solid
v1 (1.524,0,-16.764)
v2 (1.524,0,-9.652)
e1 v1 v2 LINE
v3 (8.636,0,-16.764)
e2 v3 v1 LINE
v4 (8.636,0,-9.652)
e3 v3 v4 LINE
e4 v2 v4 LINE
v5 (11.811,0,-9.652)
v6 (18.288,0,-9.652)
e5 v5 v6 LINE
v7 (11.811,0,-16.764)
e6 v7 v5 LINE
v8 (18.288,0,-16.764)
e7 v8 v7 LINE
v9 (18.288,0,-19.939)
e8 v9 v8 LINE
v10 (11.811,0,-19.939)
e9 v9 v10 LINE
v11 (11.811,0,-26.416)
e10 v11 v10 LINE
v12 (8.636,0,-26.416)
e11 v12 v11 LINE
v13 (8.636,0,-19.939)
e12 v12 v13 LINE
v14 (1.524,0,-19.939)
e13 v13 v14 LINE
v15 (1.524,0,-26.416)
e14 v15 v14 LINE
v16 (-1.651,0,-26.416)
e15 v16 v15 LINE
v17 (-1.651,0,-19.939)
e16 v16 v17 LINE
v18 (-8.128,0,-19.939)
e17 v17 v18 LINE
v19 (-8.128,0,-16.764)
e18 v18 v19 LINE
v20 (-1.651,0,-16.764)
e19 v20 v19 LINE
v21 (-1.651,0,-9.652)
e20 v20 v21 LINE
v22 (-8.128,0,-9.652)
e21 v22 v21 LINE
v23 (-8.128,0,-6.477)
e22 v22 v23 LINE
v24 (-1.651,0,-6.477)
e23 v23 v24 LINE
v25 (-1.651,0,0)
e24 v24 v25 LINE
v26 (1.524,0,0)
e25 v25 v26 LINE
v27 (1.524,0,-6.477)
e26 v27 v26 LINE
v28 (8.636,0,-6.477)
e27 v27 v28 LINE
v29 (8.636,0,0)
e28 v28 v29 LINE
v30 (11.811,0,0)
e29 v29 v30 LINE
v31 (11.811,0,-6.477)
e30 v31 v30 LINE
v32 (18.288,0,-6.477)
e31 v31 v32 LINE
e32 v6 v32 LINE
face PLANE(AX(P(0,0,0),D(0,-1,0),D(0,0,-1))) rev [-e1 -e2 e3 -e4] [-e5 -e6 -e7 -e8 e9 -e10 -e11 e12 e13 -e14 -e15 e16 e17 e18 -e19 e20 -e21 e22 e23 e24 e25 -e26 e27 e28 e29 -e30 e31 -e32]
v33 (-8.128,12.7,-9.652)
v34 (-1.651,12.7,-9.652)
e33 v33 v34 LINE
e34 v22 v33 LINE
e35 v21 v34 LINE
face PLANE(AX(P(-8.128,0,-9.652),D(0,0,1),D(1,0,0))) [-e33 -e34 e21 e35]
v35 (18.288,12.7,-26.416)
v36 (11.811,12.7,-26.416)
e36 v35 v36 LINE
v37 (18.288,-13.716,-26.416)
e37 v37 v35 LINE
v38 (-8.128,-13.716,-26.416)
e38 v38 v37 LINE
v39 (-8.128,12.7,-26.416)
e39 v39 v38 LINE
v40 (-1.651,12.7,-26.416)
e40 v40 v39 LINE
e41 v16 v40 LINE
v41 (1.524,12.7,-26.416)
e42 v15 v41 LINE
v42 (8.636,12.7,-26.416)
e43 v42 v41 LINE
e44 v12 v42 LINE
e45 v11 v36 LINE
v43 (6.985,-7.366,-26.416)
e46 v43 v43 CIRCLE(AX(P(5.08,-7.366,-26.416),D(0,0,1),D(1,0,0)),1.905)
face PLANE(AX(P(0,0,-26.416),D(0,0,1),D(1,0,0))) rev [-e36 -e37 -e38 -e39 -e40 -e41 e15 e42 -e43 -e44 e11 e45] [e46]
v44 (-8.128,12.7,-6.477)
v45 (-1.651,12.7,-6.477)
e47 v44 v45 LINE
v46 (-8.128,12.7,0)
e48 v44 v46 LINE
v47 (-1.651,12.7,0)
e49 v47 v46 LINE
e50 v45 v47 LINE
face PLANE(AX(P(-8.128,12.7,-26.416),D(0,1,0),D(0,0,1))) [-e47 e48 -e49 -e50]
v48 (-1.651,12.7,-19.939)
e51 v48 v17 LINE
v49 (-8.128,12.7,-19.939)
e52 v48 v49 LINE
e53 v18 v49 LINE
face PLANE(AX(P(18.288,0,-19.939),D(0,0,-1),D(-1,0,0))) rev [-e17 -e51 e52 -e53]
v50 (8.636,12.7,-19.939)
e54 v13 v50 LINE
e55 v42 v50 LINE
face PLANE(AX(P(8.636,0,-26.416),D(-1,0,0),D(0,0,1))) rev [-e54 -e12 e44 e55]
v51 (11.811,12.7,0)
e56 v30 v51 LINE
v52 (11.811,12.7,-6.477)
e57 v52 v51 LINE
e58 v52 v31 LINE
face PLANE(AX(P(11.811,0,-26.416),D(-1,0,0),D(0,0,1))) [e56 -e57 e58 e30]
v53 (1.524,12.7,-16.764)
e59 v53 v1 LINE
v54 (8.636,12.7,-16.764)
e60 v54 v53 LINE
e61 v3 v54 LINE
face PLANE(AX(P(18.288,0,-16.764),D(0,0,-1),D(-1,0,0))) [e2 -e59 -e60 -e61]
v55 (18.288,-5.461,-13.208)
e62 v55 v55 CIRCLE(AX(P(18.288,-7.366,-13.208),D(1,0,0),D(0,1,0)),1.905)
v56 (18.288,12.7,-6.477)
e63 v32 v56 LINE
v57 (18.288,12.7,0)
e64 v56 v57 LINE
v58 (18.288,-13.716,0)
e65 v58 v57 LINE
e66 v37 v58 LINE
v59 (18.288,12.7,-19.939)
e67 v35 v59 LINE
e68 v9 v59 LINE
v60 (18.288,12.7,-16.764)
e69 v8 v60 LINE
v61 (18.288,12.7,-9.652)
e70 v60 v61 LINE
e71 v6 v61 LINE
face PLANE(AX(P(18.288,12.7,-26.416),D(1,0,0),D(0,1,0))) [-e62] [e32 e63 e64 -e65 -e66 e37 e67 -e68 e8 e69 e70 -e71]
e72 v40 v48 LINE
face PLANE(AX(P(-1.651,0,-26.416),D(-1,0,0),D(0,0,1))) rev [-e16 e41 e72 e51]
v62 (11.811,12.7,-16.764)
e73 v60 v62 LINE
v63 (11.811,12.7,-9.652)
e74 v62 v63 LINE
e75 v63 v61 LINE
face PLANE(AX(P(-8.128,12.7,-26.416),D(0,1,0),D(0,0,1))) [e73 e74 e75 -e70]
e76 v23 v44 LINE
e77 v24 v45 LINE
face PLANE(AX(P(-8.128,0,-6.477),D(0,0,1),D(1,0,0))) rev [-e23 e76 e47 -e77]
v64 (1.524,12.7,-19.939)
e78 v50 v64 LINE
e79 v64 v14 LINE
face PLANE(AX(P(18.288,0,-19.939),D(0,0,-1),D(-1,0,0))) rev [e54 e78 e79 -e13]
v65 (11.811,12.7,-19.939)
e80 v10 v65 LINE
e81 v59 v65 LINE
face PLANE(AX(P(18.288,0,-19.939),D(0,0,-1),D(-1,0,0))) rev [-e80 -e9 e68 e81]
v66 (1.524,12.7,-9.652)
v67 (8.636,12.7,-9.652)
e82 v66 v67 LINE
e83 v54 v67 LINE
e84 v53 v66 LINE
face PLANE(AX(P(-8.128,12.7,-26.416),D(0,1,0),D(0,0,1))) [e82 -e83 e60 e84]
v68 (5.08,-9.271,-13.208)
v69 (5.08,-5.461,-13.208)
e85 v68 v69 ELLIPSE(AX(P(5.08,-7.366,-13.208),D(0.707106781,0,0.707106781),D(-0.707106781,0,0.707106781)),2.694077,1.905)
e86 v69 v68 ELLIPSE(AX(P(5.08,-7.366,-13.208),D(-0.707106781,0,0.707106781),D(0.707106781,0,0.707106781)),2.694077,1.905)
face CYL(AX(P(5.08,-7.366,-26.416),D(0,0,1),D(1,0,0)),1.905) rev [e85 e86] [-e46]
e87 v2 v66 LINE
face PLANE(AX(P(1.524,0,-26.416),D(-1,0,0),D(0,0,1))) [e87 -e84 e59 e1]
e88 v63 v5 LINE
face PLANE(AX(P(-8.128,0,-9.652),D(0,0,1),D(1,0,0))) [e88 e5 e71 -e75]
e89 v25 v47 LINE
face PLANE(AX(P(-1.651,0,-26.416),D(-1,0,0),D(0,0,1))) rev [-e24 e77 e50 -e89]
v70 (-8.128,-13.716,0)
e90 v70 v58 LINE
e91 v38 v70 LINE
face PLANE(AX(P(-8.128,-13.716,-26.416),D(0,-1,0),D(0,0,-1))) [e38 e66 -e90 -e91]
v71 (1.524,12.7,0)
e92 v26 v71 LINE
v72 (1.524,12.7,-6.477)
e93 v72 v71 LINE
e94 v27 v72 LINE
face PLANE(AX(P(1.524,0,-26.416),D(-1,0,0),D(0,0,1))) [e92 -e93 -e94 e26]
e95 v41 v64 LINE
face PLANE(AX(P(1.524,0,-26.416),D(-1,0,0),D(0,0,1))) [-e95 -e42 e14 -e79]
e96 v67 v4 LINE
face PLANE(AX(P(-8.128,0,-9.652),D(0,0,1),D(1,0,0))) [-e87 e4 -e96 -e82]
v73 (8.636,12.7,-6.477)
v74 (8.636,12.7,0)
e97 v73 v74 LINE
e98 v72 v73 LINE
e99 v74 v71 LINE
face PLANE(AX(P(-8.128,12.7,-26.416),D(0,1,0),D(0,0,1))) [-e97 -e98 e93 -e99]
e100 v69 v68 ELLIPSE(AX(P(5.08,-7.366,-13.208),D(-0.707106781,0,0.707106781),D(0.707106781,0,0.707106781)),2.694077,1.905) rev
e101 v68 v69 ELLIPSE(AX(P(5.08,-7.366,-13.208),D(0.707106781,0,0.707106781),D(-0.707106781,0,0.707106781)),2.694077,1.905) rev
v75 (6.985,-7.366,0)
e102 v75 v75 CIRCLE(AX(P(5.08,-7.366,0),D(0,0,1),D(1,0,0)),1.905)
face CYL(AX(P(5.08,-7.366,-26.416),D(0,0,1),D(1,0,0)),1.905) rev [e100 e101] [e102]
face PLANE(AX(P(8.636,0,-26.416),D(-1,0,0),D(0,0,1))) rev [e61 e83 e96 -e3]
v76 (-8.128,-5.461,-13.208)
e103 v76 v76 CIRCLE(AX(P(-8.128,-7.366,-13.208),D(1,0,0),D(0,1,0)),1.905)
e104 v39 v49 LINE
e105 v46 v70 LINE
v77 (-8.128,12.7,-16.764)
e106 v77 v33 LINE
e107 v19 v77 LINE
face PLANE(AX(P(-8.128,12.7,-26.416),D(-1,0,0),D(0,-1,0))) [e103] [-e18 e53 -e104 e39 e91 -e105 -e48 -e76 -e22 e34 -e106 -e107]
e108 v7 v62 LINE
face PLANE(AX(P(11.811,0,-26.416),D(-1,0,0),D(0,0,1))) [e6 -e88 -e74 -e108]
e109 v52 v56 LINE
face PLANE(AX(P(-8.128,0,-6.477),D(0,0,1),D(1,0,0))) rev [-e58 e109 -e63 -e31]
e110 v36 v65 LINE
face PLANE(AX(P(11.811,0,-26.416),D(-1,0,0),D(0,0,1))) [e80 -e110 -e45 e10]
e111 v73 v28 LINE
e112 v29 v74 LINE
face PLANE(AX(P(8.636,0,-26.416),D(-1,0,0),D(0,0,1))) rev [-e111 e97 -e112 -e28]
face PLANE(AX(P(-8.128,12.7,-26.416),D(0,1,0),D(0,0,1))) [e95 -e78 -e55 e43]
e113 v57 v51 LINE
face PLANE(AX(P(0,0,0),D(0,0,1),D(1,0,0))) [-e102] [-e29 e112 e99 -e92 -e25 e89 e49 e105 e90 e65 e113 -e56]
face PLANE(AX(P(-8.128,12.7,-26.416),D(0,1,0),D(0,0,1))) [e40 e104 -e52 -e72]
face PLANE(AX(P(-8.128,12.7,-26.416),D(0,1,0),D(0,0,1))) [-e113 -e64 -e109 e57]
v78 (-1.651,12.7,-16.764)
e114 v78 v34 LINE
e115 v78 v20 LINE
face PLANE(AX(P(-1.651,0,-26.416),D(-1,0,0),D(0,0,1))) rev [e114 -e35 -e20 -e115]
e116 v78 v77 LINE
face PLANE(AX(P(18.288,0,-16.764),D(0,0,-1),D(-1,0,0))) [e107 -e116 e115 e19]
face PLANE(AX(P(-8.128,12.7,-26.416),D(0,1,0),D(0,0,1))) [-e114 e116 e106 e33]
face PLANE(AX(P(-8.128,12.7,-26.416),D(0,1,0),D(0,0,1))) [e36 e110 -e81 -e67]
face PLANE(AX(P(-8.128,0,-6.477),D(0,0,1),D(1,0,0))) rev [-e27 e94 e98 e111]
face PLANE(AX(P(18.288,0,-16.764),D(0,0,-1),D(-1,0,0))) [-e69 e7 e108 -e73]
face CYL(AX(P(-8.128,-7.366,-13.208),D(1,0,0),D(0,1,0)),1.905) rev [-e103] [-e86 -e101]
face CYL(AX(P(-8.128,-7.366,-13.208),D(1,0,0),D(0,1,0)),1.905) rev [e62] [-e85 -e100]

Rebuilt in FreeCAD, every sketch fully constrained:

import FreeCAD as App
import Part
import Sketcher
Q = App.Units.Quantity

doc = App.newDocument("Part")
body = doc.addObject("PartDesign::Body", "Body")

# Sketch on XY plane
sketch1 = body.newObject("Sketcher::SketchObject", "Sketch")
sketch1.AttachmentSupport = (doc.getObject("XY_Plane"), [""])
sketch1.MapMode = "FlatFace"
sketch1.addGeometry(Part.LineSegment(App.Vector(-8, 13, 0), App.Vector(-8, -14, 0)), False)
sketch1.addGeometry(Part.LineSegment(App.Vector(-8, -14, 0), App.Vector(18, -14, 0)), False)
sketch1.addGeometry(Part.LineSegment(App.Vector(18, -14, 0), App.Vector(18, 13, 0)), False)
sketch1.addGeometry(Part.LineSegment(App.Vector(18, 13, 0), App.Vector(-8, 13, 0)), False)
sketch1.addConstraint(Sketcher.Constraint("Coincident", 0, 2, 1, 1))
sketch1.addConstraint(Sketcher.Constraint("Coincident", 1, 2, 2, 1))
sketch1.addConstraint(Sketcher.Constraint("Coincident", 2, 2, 3, 1))
sketch1.addConstraint(Sketcher.Constraint("Coincident", 3, 2, 0, 1))
sketch1.addConstraint(Sketcher.Constraint("Vertical", 0))
sketch1.addConstraint(Sketcher.Constraint("Horizontal", 1))
sketch1.addConstraint(Sketcher.Constraint("Vertical", 2))
sketch1.addConstraint(Sketcher.Constraint("Horizontal", 3))
sketch1.addConstraint(Sketcher.Constraint("Equal", 3, 0))
sketch1.addConstraint(Sketcher.Constraint("DistanceX", 1, 1, 1, 2, Q("1.04 in")))
sketch1.addConstraint(Sketcher.Constraint("DistanceY", -1, 1, 2, 2, Q("0.5 in")))
sketch1.addConstraint(Sketcher.Constraint("DistanceX", 0, 2, -1, 1, Q("0.32 in")))
pad1 = body.newObject("PartDesign::Pad", "Pad")
pad1.Profile = sketch1
pad1.Length = Q("1.04 in")
pad1.Reversed = True

# Sketch on XZ plane
sketch2 = body.newObject("Sketcher::SketchObject", "Sketch001")
sketch2.AttachmentSupport = (doc.getObject("XZ_Plane"), [""])
sketch2.MapMode = "FlatFace"
sketch2.AttachmentOffset = App.Placement(App.Vector(0, 0, -0.5 * 25.4), App.Rotation())
sketch2.addGeometry(Part.LineSegment(App.Vector(-1.7, -6.5, 0), App.Vector(-1.7, 0, 0)), False)
sketch2.addGeometry(Part.LineSegment(App.Vector(-1.7, 0, 0), App.Vector(1.5, 0, 0)), False)
sketch2.addGeometry(Part.LineSegment(App.Vector(1.5, 0, 0), App.Vector(1.5, -6.5, 0)), False)
sketch2.addGeometry(Part.LineSegment(App.Vector(1.5, -6.5, 0), App.Vector(8.6, -6.5, 0)), False)
sketch2.addGeometry(Part.LineSegment(App.Vector(8.6, -6.5, 0), App.Vector(8.6, 0, 0)), False)
sketch2.addGeometry(Part.LineSegment(App.Vector(8.6, 0, 0), App.Vector(11.8, 0, 0)), False)
sketch2.addGeometry(Part.LineSegment(App.Vector(11.8, 0, 0), App.Vector(11.8, -6.5, 0)), False)
sketch2.addGeometry(Part.LineSegment(App.Vector(11.8, -6.5, 0), App.Vector(18.3, -6.5, 0)), False)
sketch2.addGeometry(Part.LineSegment(App.Vector(18.3, -6.5, 0), App.Vector(18.3, -9.7, 0)), False)
sketch2.addGeometry(Part.LineSegment(App.Vector(18.3, -9.7, 0), App.Vector(11.8, -9.7, 0)), False)
sketch2.addGeometry(Part.LineSegment(App.Vector(11.8, -9.7, 0), App.Vector(11.8, -16.8, 0)), False)
sketch2.addGeometry(Part.LineSegment(App.Vector(11.8, -16.8, 0), App.Vector(18.3, -16.8, 0)), False)
sketch2.addGeometry(Part.LineSegment(App.Vector(18.3, -16.8, 0), App.Vector(18.3, -19.9, 0)), False)
sketch2.addGeometry(Part.LineSegment(App.Vector(18.3, -19.9, 0), App.Vector(11.8, -19.9, 0)), False)
sketch2.addGeometry(Part.LineSegment(App.Vector(11.8, -19.9, 0), App.Vector(11.8, -26.4, 0)), False)
sketch2.addGeometry(Part.LineSegment(App.Vector(11.8, -26.4, 0), App.Vector(8.6, -26.4, 0)), False)
sketch2.addGeometry(Part.LineSegment(App.Vector(8.6, -26.4, 0), App.Vector(8.6, -19.9, 0)), False)
sketch2.addGeometry(Part.LineSegment(App.Vector(8.6, -19.9, 0), App.Vector(1.5, -19.9, 0)), False)
sketch2.addGeometry(Part.LineSegment(App.Vector(1.5, -19.9, 0), App.Vector(1.5, -26.4, 0)), False)
sketch2.addGeometry(Part.LineSegment(App.Vector(1.5, -26.4, 0), App.Vector(-1.7, -26.4, 0)), False)
sketch2.addGeometry(Part.LineSegment(App.Vector(-1.7, -26.4, 0), App.Vector(-1.7, -19.9, 0)), False)
sketch2.addGeometry(Part.LineSegment(App.Vector(-1.7, -19.9, 0), App.Vector(-8.1, -19.9, 0)), False)
sketch2.addGeometry(Part.LineSegment(App.Vector(-8.1, -19.9, 0), App.Vector(-8.1, -16.8, 0)), False)
sketch2.addGeometry(Part.LineSegment(App.Vector(-8.1, -16.8, 0), App.Vector(-1.7, -16.8, 0)), False)
sketch2.addGeometry(Part.LineSegment(App.Vector(-1.7, -16.8, 0), App.Vector(-1.7, -9.7, 0)), False)
sketch2.addGeometry(Part.LineSegment(App.Vector(-1.7, -9.7, 0), App.Vector(-8.1, -9.7, 0)), False)
sketch2.addGeometry(Part.LineSegment(App.Vector(-8.1, -9.7, 0), App.Vector(-8.1, -6.5, 0)), False)
sketch2.addGeometry(Part.LineSegment(App.Vector(-8.1, -6.5, 0), App.Vector(-1.7, -6.5, 0)), False)
sketch2.addGeometry(Part.LineSegment(App.Vector(8.6, -16.8, 0), App.Vector(8.6, -9.7, 0)), False)
sketch2.addGeometry(Part.LineSegment(App.Vector(8.6, -9.7, 0), App.Vector(1.5, -9.7, 0)), False)
sketch2.addGeometry(Part.LineSegment(App.Vector(1.5, -9.7, 0), App.Vector(1.5, -16.8, 0)), False)
sketch2.addGeometry(Part.LineSegment(App.Vector(1.5, -16.8, 0), App.Vector(8.6, -16.8, 0)), False)
sketch2.addConstraint(Sketcher.Constraint("Coincident", 0, 2, 1, 1))
sketch2.addConstraint(Sketcher.Constraint("Coincident", 1, 2, 2, 1))
sketch2.addConstraint(Sketcher.Constraint("Coincident", 2, 2, 3, 1))
sketch2.addConstraint(Sketcher.Constraint("Coincident", 3, 2, 4, 1))
sketch2.addConstraint(Sketcher.Constraint("Coincident", 4, 2, 5, 1))
sketch2.addConstraint(Sketcher.Constraint("Coincident", 5, 2, 6, 1))
sketch2.addConstraint(Sketcher.Constraint("Coincident", 6, 2, 7, 1))
sketch2.addConstraint(Sketcher.Constraint("Coincident", 7, 2, 8, 1))
sketch2.addConstraint(Sketcher.Constraint("Coincident", 8, 2, 9, 1))
sketch2.addConstraint(Sketcher.Constraint("Coincident", 9, 2, 10, 1))
sketch2.addConstraint(Sketcher.Constraint("Coincident", 10, 2, 11, 1))
sketch2.addConstraint(Sketcher.Constraint("Coincident", 11, 2, 12, 1))
sketch2.addConstraint(Sketcher.Constraint("Coincident", 12, 2, 13, 1))
sketch2.addConstraint(Sketcher.Constraint("Coincident", 13, 2, 14, 1))
sketch2.addConstraint(Sketcher.Constraint("Coincident", 14, 2, 15, 1))
sketch2.addConstraint(Sketcher.Constraint("Coincident", 15, 2, 16, 1))
sketch2.addConstraint(Sketcher.Constraint("Coincident", 16, 2, 17, 1))
sketch2.addConstraint(Sketcher.Constraint("Coincident", 17, 2, 18, 1))
sketch2.addConstraint(Sketcher.Constraint("Coincident", 18, 2, 19, 1))
sketch2.addConstraint(Sketcher.Constraint("Coincident", 19, 2, 20, 1))
sketch2.addConstraint(Sketcher.Constraint("Coincident", 20, 2, 21, 1))
sketch2.addConstraint(Sketcher.Constraint("Coincident", 21, 2, 22, 1))
sketch2.addConstraint(Sketcher.Constraint("Coincident", 22, 2, 23, 1))
sketch2.addConstraint(Sketcher.Constraint("Coincident", 23, 2, 24, 1))
sketch2.addConstraint(Sketcher.Constraint("Coincident", 24, 2, 25, 1))
sketch2.addConstraint(Sketcher.Constraint("Coincident", 25, 2, 26, 1))
sketch2.addConstraint(Sketcher.Constraint("Coincident", 26, 2, 27, 1))
sketch2.addConstraint(Sketcher.Constraint("Coincident", 27, 2, 0, 1))
sketch2.addConstraint(Sketcher.Constraint("Coincident", 28, 2, 29, 1))
sketch2.addConstraint(Sketcher.Constraint("Coincident", 29, 2, 30, 1))
sketch2.addConstraint(Sketcher.Constraint("Coincident", 30, 2, 31, 1))
sketch2.addConstraint(Sketcher.Constraint("Coincident", 31, 2, 28, 1))
sketch2.addConstraint(Sketcher.Constraint("Vertical", 0))
sketch2.addConstraint(Sketcher.Constraint("Horizontal", 1))
sketch2.addConstraint(Sketcher.Constraint("Vertical", 2))
sketch2.addConstraint(Sketcher.Constraint("Horizontal", 3))
sketch2.addConstraint(Sketcher.Constraint("Vertical", 4))
sketch2.addConstraint(Sketcher.Constraint("Horizontal", 5))
sketch2.addConstraint(Sketcher.Constraint("Vertical", 6))
sketch2.addConstraint(Sketcher.Constraint("Horizontal", 7))
sketch2.addConstraint(Sketcher.Constraint("Vertical", 8))
sketch2.addConstraint(Sketcher.Constraint("Horizontal", 9))
sketch2.addConstraint(Sketcher.Constraint("Vertical", 10))
sketch2.addConstraint(Sketcher.Constraint("Horizontal", 11))
sketch2.addConstraint(Sketcher.Constraint("Vertical", 12))
sketch2.addConstraint(Sketcher.Constraint("Horizontal", 13))
sketch2.addConstraint(Sketcher.Constraint("Vertical", 14))
sketch2.addConstraint(Sketcher.Constraint("Horizontal", 15))
sketch2.addConstraint(Sketcher.Constraint("Vertical", 16))
sketch2.addConstraint(Sketcher.Constraint("Horizontal", 17))
sketch2.addConstraint(Sketcher.Constraint("Vertical", 18))
sketch2.addConstraint(Sketcher.Constraint("Horizontal", 19))
sketch2.addConstraint(Sketcher.Constraint("Vertical", 20))
sketch2.addConstraint(Sketcher.Constraint("Horizontal", 21))
sketch2.addConstraint(Sketcher.Constraint("Vertical", 22))
sketch2.addConstraint(Sketcher.Constraint("Horizontal", 23))
sketch2.addConstraint(Sketcher.Constraint("Vertical", 24))
sketch2.addConstraint(Sketcher.Constraint("Horizontal", 25))
sketch2.addConstraint(Sketcher.Constraint("Vertical", 26))
sketch2.addConstraint(Sketcher.Constraint("Horizontal", 27))
sketch2.addConstraint(Sketcher.Constraint("Vertical", 28))
sketch2.addConstraint(Sketcher.Constraint("Horizontal", 29))
sketch2.addConstraint(Sketcher.Constraint("Vertical", 30))
sketch2.addConstraint(Sketcher.Constraint("Horizontal", 31))
sketch2.addConstraint(Sketcher.Constraint("PointOnObject", 0, 2, -1))
sketch2.addConstraint(Sketcher.Constraint("PointOnObject", 4, 2, -1))
sketch2.addConstraint(Sketcher.Constraint("Horizontal", 3, 2, 6, 2))
sketch2.addConstraint(Sketcher.Constraint("Horizontal", 13, 2, 16, 2))
sketch2.addConstraint(Sketcher.Constraint("Horizontal", 15, 2, 18, 2))
sketch2.addConstraint(Sketcher.Constraint("Horizontal", 17, 2, 20, 2))
sketch2.addConstraint(Sketcher.Constraint("Horizontal", 11, 2, 22, 2))
sketch2.addConstraint(Sketcher.Constraint("Horizontal", 9, 2, 24, 2))
sketch2.addConstraint(Sketcher.Constraint("Horizontal", 7, 2, 26, 2))
sketch2.addConstraint(Sketcher.Constraint("Horizontal", 25, 2, 28, 2))
sketch2.addConstraint(Sketcher.Constraint("Horizontal", 23, 2, 30, 2))
sketch2.addConstraint(Sketcher.Constraint("Vertical", 6, 2, 9, 2))
sketch2.addConstraint(Sketcher.Constraint("Vertical", 8, 2, 11, 2))
sketch2.addConstraint(Sketcher.Constraint("Vertical", 10, 2, 13, 2))
sketch2.addConstraint(Sketcher.Constraint("Vertical", 4, 2, 15, 2))
sketch2.addConstraint(Sketcher.Constraint("Vertical", 2, 2, 17, 2))
sketch2.addConstraint(Sketcher.Constraint("Vertical", 0, 2, 19, 2))
sketch2.addConstraint(Sketcher.Constraint("Vertical", 20, 2, 23, 2))
sketch2.addConstraint(Sketcher.Constraint("Vertical", 22, 2, 25, 2))
sketch2.addConstraint(Sketcher.Constraint("Vertical", 16, 2, 28, 2))
sketch2.addConstraint(Sketcher.Constraint("Vertical", 18, 2, 29, 2))
sketch2.addConstraint(Sketcher.Constraint("Equal", 1, 5))
sketch2.addConstraint(Sketcher.Constraint("Equal", 13, 21))
sketch2.addConstraint(Sketcher.Constraint("Equal", 27, 0))
sketch2.addConstraint(Sketcher.Constraint("Equal", 19, 8))
sketch2.addConstraint(Sketcher.Constraint("Equal", 31, 10))
sketch2.addConstraint(Sketcher.Constraint("Equal", 8, 12))
sketch2.addConstraint(Sketcher.Constraint("Equal", 6, 14))
sketch2.addConstraint(Sketcher.Constraint("DistanceX", 3, 1, 3, 2, Q("0.28 in")))
sketch2.addConstraint(Sketcher.Constraint("DistanceX", 1, 1, 1, 2, Q("0.125 in")))
sketch2.addConstraint(Sketcher.Constraint("DistanceX", 7, 1, 7, 2, Q("0.255 in")))
sketch2.addConstraint(Sketcher.Constraint("DistanceX", -1, 1, 1, 2, Q("0.06 in")))
pocket1 = body.newObject("PartDesign::Pocket", "Pocket")
pocket1.Profile = sketch2
pocket1.Length = Q("0.5 in")
pocket1.Reversed = True

# Sketch on XY plane
sketch3 = body.newObject("Sketcher::SketchObject", "Sketch002")
sketch3.AttachmentSupport = (doc.getObject("XY_Plane"), [""])
sketch3.MapMode = "FlatFace"
sketch3.addGeometry(Part.Circle(App.Vector(5.1, -7.4, 0), App.Vector(0, 0, 1), 1.9), False)
sketch3.addConstraint(Sketcher.Constraint("Diameter", 0, Q("0.15 in")))
sketch3.addConstraint(Sketcher.Constraint("DistanceX", -1, 1, 0, 3, Q("0.2 in")))
sketch3.addConstraint(Sketcher.Constraint("DistanceY", 0, 3, -1, 1, Q("0.29 in")))
pocket2 = body.newObject("PartDesign::Pocket", "Pocket001")
pocket2.Profile = sketch3
pocket2.Type = "ThroughAll"

# Sketch on YZ plane
sketch4 = body.newObject("Sketcher::SketchObject", "Sketch003")
sketch4.AttachmentSupport = (doc.getObject("YZ_Plane"), [""])
sketch4.MapMode = "FlatFace"
sketch4.AttachmentOffset = App.Placement(App.Vector(0, 0, 0.72 * 25.4), App.Rotation())
sketch4.addGeometry(Part.Circle(App.Vector(-7.4, -13.2, 0), App.Vector(0, 0, 1), 1.9), False)
sketch4.addConstraint(Sketcher.Constraint("Diameter", 0, Q("0.15 in")))
sketch4.addConstraint(Sketcher.Constraint("DistanceX", 0, 3, -1, 1, Q("0.29 in")))
sketch4.addConstraint(Sketcher.Constraint("DistanceY", 0, 3, -1, 1, Q("0.52 in")))
pocket3 = body.newObject("PartDesign::Pocket", "Pocket002")
pocket3.Profile = sketch4
pocket3.Type = "ThroughAll"

doc.recompute()
